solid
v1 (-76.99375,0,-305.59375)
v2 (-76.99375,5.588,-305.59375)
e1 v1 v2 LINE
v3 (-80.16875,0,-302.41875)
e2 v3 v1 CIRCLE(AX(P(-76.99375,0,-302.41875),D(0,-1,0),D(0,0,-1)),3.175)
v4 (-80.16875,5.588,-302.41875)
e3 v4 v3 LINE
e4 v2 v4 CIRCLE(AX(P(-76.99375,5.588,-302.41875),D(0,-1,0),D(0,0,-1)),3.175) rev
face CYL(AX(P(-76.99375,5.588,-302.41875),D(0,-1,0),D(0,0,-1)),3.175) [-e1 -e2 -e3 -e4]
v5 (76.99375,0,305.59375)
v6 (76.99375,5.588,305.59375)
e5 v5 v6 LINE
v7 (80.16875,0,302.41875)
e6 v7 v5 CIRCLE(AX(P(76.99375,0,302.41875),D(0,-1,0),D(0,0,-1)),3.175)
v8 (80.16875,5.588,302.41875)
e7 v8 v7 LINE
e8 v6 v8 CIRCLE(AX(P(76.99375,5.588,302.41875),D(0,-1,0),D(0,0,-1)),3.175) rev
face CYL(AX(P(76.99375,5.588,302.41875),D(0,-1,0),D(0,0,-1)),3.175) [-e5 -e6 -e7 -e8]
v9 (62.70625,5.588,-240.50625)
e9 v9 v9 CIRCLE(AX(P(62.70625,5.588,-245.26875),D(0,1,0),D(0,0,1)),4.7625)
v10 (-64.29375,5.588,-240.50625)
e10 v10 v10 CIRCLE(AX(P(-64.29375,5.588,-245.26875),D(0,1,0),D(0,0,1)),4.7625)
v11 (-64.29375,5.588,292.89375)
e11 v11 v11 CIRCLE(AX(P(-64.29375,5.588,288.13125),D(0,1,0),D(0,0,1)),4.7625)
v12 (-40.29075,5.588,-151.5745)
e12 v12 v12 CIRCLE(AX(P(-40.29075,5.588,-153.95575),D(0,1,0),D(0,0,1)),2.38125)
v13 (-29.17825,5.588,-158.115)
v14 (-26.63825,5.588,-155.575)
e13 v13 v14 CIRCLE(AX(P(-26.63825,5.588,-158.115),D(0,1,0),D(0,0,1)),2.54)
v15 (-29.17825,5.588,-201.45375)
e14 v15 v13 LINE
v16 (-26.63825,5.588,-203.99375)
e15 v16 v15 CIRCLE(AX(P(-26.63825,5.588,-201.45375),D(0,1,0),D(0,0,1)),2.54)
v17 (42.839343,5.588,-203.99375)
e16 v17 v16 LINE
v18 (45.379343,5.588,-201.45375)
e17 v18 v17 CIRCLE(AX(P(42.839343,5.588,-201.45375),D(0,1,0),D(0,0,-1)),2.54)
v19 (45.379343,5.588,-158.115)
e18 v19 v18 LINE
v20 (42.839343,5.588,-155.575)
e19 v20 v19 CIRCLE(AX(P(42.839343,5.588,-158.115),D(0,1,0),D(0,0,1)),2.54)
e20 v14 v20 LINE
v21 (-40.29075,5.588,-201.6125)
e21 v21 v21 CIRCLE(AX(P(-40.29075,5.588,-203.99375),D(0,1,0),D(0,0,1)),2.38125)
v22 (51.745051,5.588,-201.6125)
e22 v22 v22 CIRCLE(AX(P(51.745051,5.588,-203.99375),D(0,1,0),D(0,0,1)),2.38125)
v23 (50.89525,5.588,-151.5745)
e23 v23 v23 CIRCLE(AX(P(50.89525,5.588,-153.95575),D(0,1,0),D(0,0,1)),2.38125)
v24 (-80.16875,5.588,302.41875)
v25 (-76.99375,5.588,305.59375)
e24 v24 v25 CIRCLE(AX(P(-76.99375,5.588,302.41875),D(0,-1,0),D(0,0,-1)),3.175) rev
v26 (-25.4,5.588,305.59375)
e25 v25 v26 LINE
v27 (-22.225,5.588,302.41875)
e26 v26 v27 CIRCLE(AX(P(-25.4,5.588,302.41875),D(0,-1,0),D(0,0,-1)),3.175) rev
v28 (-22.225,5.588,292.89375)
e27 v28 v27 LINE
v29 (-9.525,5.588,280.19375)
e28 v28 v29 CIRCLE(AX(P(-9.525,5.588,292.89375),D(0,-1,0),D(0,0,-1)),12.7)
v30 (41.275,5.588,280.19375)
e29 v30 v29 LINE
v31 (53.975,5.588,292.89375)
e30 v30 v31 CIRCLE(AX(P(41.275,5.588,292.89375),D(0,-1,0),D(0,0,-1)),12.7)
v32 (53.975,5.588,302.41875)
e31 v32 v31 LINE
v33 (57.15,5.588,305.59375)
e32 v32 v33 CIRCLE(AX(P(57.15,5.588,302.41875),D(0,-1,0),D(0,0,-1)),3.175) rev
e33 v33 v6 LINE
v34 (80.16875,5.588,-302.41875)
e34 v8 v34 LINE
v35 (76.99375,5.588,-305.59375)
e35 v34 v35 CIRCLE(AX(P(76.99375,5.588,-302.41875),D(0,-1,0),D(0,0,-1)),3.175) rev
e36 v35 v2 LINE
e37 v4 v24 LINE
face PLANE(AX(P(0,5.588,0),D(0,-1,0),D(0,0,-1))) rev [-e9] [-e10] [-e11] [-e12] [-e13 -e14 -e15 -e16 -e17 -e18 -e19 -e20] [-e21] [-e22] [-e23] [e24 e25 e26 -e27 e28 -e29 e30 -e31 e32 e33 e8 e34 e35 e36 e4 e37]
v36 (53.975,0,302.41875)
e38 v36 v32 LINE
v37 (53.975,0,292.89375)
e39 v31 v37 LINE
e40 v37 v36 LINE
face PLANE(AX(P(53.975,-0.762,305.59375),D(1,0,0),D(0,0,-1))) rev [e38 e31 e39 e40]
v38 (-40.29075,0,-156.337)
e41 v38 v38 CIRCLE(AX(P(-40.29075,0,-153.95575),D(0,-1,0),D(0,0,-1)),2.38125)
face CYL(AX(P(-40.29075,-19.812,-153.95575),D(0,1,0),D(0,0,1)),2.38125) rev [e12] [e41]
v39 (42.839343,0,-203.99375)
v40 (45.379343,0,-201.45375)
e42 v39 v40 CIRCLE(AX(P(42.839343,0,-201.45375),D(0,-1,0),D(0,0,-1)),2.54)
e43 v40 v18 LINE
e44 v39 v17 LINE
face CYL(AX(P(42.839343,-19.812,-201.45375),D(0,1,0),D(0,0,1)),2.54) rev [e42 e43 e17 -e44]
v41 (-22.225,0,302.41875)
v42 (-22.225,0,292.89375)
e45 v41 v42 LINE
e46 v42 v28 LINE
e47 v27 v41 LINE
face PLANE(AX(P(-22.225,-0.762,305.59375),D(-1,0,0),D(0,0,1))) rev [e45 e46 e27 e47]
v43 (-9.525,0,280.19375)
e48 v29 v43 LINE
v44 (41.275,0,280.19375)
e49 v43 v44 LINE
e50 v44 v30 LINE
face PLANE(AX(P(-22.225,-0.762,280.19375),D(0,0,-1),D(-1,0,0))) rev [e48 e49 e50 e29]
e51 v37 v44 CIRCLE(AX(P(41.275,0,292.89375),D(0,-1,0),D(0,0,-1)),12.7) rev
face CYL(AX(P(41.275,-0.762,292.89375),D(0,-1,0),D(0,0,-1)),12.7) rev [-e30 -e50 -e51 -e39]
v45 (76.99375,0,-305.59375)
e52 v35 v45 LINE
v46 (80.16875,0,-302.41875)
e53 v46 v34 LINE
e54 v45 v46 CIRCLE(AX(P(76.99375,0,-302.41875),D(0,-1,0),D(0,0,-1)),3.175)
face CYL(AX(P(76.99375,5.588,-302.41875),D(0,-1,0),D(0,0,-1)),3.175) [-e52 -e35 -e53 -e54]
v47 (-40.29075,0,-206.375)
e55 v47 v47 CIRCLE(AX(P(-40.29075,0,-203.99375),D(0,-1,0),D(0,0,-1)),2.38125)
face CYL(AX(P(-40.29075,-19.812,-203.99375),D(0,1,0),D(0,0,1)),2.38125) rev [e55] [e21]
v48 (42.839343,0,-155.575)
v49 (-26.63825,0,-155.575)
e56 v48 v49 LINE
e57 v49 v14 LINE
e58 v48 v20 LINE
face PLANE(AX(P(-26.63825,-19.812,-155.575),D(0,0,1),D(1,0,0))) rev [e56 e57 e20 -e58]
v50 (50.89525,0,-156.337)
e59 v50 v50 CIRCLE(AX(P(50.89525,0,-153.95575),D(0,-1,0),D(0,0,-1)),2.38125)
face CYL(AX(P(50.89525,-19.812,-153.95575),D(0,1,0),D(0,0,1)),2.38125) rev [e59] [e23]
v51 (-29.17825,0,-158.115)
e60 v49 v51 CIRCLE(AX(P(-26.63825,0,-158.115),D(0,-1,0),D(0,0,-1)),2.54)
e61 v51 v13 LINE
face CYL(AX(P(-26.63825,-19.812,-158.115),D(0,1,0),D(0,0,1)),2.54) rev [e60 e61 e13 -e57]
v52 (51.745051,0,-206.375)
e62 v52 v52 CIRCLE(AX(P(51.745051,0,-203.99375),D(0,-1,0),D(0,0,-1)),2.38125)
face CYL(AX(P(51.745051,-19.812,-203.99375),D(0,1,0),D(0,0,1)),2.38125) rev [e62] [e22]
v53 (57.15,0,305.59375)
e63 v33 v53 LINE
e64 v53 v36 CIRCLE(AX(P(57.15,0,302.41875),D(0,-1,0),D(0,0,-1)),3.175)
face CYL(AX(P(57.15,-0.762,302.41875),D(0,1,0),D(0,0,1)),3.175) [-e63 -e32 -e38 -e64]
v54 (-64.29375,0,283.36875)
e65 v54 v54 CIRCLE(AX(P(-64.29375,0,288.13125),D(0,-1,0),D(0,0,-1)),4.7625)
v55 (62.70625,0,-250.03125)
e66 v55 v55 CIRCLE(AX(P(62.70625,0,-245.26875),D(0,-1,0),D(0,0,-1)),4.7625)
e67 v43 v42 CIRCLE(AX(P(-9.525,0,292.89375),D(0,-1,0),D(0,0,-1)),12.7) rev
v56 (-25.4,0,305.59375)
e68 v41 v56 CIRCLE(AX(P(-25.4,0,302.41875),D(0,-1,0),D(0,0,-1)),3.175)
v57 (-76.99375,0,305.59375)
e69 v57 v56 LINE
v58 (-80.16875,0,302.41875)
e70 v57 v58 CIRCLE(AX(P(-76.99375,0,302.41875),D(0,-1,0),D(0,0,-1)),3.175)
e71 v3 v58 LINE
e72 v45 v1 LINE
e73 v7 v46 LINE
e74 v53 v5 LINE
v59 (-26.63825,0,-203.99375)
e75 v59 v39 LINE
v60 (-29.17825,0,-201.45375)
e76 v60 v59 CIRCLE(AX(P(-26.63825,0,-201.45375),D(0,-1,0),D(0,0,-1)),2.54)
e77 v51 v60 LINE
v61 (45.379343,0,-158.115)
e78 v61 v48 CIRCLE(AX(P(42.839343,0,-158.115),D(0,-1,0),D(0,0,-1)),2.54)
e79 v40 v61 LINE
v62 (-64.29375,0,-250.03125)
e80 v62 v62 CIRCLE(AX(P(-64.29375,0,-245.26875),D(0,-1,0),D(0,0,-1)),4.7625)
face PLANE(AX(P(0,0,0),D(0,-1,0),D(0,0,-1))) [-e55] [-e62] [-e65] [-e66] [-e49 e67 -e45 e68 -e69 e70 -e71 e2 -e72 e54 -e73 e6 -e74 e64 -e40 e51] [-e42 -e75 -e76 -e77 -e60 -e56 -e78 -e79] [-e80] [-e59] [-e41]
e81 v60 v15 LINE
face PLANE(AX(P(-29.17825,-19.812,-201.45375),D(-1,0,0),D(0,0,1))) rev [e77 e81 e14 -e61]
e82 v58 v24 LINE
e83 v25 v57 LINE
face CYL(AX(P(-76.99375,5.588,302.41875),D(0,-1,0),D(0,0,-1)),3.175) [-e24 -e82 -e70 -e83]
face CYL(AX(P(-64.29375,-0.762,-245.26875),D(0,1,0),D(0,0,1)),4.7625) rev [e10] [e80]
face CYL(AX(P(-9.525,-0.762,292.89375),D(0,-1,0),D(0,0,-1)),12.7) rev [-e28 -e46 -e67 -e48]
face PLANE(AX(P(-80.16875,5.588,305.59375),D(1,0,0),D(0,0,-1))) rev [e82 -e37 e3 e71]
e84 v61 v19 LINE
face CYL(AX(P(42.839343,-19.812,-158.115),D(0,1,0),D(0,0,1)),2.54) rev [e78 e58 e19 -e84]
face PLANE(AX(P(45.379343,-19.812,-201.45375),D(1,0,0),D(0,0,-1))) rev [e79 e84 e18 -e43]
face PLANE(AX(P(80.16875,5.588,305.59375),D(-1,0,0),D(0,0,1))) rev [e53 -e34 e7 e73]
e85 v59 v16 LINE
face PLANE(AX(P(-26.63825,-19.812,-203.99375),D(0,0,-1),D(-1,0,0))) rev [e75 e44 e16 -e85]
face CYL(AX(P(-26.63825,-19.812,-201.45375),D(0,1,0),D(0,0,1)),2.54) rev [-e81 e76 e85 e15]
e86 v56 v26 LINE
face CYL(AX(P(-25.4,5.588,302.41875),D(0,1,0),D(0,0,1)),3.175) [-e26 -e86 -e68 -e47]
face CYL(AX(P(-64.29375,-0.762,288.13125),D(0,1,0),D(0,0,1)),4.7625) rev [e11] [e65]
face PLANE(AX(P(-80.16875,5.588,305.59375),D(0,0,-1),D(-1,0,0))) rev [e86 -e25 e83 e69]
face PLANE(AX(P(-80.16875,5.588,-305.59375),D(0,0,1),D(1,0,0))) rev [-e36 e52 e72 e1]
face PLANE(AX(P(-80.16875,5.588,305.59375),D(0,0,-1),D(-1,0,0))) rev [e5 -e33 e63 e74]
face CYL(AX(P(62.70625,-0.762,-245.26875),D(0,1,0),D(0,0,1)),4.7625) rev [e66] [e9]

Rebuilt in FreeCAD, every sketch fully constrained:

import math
import FreeCAD as App
import Part
import Sketcher
Q = App.Units.Quantity


def edges_at(feature, points):
    """Names of the edges that pass closest to the given points."""
    edges = feature.Shape.Edges
    near = lambda p: min(range(len(edges)), key=lambda i: edges[i].distToShape(Part.Vertex(*p))[0])
    return sorted({f"Edge{near(p) + 1}" for p in points})

doc = App.newDocument("Part")
body = doc.addObject("PartDesign::Body", "Body")

# Sketch on XZ plane
sketch1 = doc.addObject("Sketcher::SketchObject", "Sketch")
body.addObject(sketch1)
sketch1.AttachmentSupport = (doc.XZ_Plane, [""])
sketch1.MapMode = "FlatFace"
sketch1.addGeometry([
    Part.LineSegment(App.Vector(-80.16875, -305.59375, 0), App.Vector(-80.16875, 305.59375, 0)),
    Part.LineSegment(App.Vector(-80.16875, 305.59375, 0), App.Vector(80.16875, 305.59375, 0)),
    Part.LineSegment(App.Vector(80.16875, 305.59375, 0), App.Vector(80.16875, -305.59375, 0)),
    Part.LineSegment(App.Vector(80.16875, -305.59375, 0), App.Vector(-80.16875, -305.59375, 0)),
], False)
sketch1.addConstraint([
    Sketcher.Constraint("Coincident", 0, 2, 1, 1),
    Sketcher.Constraint("Coincident", 1, 2, 2, 1),
    Sketcher.Constraint("Coincident", 2, 2, 3, 1),
    Sketcher.Constraint("Coincident", 3, 2, 0, 1),
    Sketcher.Constraint("Vertical", 0),
    Sketcher.Constraint("Horizontal", 1),
    Sketcher.Constraint("Vertical", 2),
    Sketcher.Constraint("Horizontal", 3),
    Sketcher.Constraint("Symmetric", 0, 2, 2, 2, -1, 1),
    Sketcher.Constraint("DistanceX", 1, 1, 1, 2, Q("6.3125 in")),
    Sketcher.Constraint("DistanceY", 0, 1, 0, 2, Q("24.0625 in")),
])
pad1 = doc.addObject("PartDesign::Pad", "Pad")
body.addObject(pad1)
pad1.Profile = sketch1
pad1.Length = Q("0.22 in")
pad1.Reversed = True
doc.recompute()

fillet = doc.addObject("PartDesign::Fillet", "Fillet")
body.addObject(fillet)
fillet.Base = (pad1, edges_at(pad1, [
    (80.169, 2.794, 305.594),
    (-80.169, 2.794, 305.594),
    (-80.169, 2.794, -305.594),
    (80.169, 2.794, -305.594),
]))
fillet.Radius = Q("0.125 in")

# Sketch on XZ plane
sketch2 = doc.addObject("Sketcher::SketchObject", "Sketch001")
body.addObject(sketch2)
sketch2.AttachmentSupport = (doc.XZ_Plane, [""])
sketch2.MapMode = "FlatFace"
sketch2.AttachmentOffset = App.Placement(App.Vector(0, 0, -0.22 * 25.4), App.Rotation())
sketch2.addGeometry([
    Part.Circle(App.Vector(62.70625, -245.26875, 0), App.Vector(0, 0, 1), 4.7625),
    Part.Circle(App.Vector(-64.29375, -245.26875, 0), App.Vector(0, 0, 1), 4.7625),
    Part.Circle(App.Vector(-64.29375, 288.13125, 0), App.Vector(0, 0, 1), 4.7625),
], False)
sketch2.addConstraint([
    Sketcher.Constraint("Equal", 0, 1),
    Sketcher.Constraint("Equal", 1, 2),
    Sketcher.Constraint("Horizontal", 0, 3, 1, 3),
    Sketcher.Constraint("Vertical", 1, 3, 2, 3),
    Sketcher.Constraint("Diameter", 0, Q("0.375 in")),
    Sketcher.Constraint("DistanceX", 1, 3, 0, 3, Q("5 in")),
    Sketcher.Constraint("DistanceY", 1, 3, 2, 3, Q("21 in")),
    Sketcher.Constraint("DistanceX", -1, 1, 0, 3, Q("2.46875 in")),
    Sketcher.Constraint("DistanceY", 0, 3, -1, 1, Q("9.65625 in")),
])
pocket1 = doc.addObject("PartDesign::Pocket", "Pocket")
body.addObject(pocket1)
pocket1.Profile = sketch2
pocket1.Length = Q("0.25 in")
pocket1.Reversed = True

# Sketch on XZ plane
sketch3 = doc.addObject("Sketcher::SketchObject", "Sketch002")
body.addObject(sketch3)
sketch3.AttachmentSupport = (doc.XZ_Plane, [""])
sketch3.MapMode = "FlatFace"
sketch3.AttachmentOffset = App.Placement(App.Vector(0, 0, -0.22 * 25.4), App.Rotation())
sketch3.addGeometry([
    Part.LineSegment(App.Vector(-22.225, 280.19375, 0), App.Vector(-22.225, 305.59375, 0)),
    Part.LineSegment(App.Vector(-22.225, 305.59375, 0), App.Vector(53.975, 305.59375, 0)),
    Part.LineSegment(App.Vector(53.975, 305.59375, 0), App.Vector(53.975, 280.19375, 0)),
    Part.LineSegment(App.Vector(53.975, 280.19375, 0), App.Vector(-22.225, 280.19375, 0)),
], False)
sketch3.addConstraint([
    Sketcher.Constraint("Coincident", 0, 2, 1, 1),
    Sketcher.Constraint("Coincident", 1, 2, 2, 1),
    Sketcher.Constraint("Coincident", 2, 2, 3, 1),
    Sketcher.Constraint("Coincident", 3, 2, 0, 1),
    Sketcher.Constraint("Vertical", 0),
    Sketcher.Constraint("Horizontal", 1),
    Sketcher.Constraint("Vertical", 2),
    Sketcher.Constraint("Horizontal", 3),
    Sketcher.Constraint("DistanceX", 1, 1, 1, 2, Q("3 in")),
    Sketcher.Constraint("DistanceY", 0, 1, 0, 2, Q("1 in")),
    Sketcher.Constraint("DistanceX", 0, 2, -1, 1, Q("0.875 in")),
    Sketcher.Constraint("DistanceY", -1, 1, 0, 2, Q("12.03125 in")),
])
pocket2 = doc.addObject("PartDesign::Pocket", "Pocket001")
body.addObject(pocket2)
pocket2.Profile = sketch3
pocket2.Length = Q("0.25 in")
pocket2.Reversed = True
doc.recompute()

fillet2 = doc.addObject("PartDesign::Fillet", "Fillet001")
body.addObject(fillet2)
fillet2.Base = (pocket2, edges_at(pocket2, [(-22.225, 2.794, 305.594), (53.975, 2.794, 305.594)]))
fillet2.Radius = Q("0.125 in")
doc.recompute()

fillet3 = doc.addObject("PartDesign::Fillet", "Fillet002")
body.addObject(fillet3)
fillet3.Base = (fillet2, edges_at(fillet2, [(-22.225, 2.794, 280.194), (53.975, 2.794, 280.194)]))
fillet3.Radius = Q("0.5 in")

# Sketch on XZ plane
sketch4 = doc.addObject("Sketcher::SketchObject", "Sketch003")
body.addObject(sketch4)
sketch4.AttachmentSupport = (doc.XZ_Plane, [""])
sketch4.MapMode = "FlatFace"
sketch4.AttachmentOffset = App.Placement(App.Vector(0, 0, -0.22 * 25.4), App.Rotation())
sketch4.addGeometry([
    Part.Circle(App.Vector(-40.29075, -203.99375, 0), App.Vector(0, 0, 1), 2.38125),  # 0
    Part.Circle(App.Vector(-40.29075, -153.95575, 0), App.Vector(0, 0, 1), 2.38125),  # 1
    Part.Circle(App.Vector(51.745051, -203.99375, 0), App.Vector(0, 0, 1), 2.38125),  # 2
    Part.Circle(App.Vector(50.89525, -153.95575, 0), App.Vector(0, 0, 1), 2.38125),  # 3
    Part.LineSegment(App.Vector(42.839343, -203.99375, 0), App.Vector(-26.63825, -203.99375, 0)),  # 4
    Part.ArcOfCircle(Part.Circle(App.Vector(-26.63825, -201.45375, 0), App.Vector(0, 0, 1), 2.54), math.radians(-180), math.radians(-90)),  # 5
    Part.LineSegment(App.Vector(-29.17825, -201.45375, 0), App.Vector(-29.17825, -158.115, 0)),  # 6
    Part.ArcOfCircle(Part.Circle(App.Vector(-26.63825, -158.115, 0), App.Vector(0, 0, 1), 2.54), math.radians(90), math.radians(180)),  # 7
    Part.LineSegment(App.Vector(-26.63825, -155.575, 0), App.Vector(42.839343, -155.575, 0)),  # 8
    Part.ArcOfCircle(Part.Circle(App.Vector(42.839343, -158.115, 0), App.Vector(0, 0, 1), 2.54), math.radians(0), math.radians(90)),  # 9
    Part.LineSegment(App.Vector(45.379343, -158.115, 0), App.Vector(45.379343, -201.45375, 0)),  # 10
    Part.ArcOfCircle(Part.Circle(App.Vector(42.839343, -201.45375, 0), App.Vector(0, 0, 1), 2.54), math.radians(-90), math.radians(0)),  # 11
], False)
sketch4.addConstraint([
    Sketcher.Constraint("Tangent", 4, 2, 5, 2),
    Sketcher.Constraint("Tangent", 5, 1, 6, 1),
    Sketcher.Constraint("Tangent", 6, 2, 7, 2),
    Sketcher.Constraint("Tangent", 7, 1, 8, 1),
    Sketcher.Constraint("Tangent", 8, 2, 9, 2),
    Sketcher.Constraint("Tangent", 9, 1, 10, 1),
    Sketcher.Constraint("Tangent", 10, 2, 11, 2),
    Sketcher.Constraint("Tangent", 11, 1, 4, 1),
    Sketcher.Constraint("Horizontal", 4),
    Sketcher.Constraint("Vertical", 6),
    Sketcher.Constraint("Horizontal", 8),
    Sketcher.Constraint("Vertical", 10),
    Sketcher.Constraint("Equal", 0, 1),
    Sketcher.Constraint("Equal", 1, 2),
    Sketcher.Constraint("Equal", 2, 3),
    Sketcher.Constraint("Equal", 5, 7),
    Sketcher.Constraint("Equal", 7, 9),
    Sketcher.Constraint("Equal", 9, 11),
    Sketcher.Constraint("Horizontal", 0, 3, 2, 3),
    Sketcher.Constraint("Horizontal", 1, 3, 3, 3),
    Sketcher.Constraint("Horizontal", 2, 3, 4, 2),
    Sketcher.Constraint("Vertical", 0, 3, 1, 3),
    Sketcher.Constraint("Radius", 5, Q("0.1 in")),
    Sketcher.Constraint("Diameter", 0, Q("0.1875 in")),
    Sketcher.Constraint("DistanceY", 0, 3, 1, 3, Q("1.97 in")),
    Sketcher.Constraint("DistanceX", 1, 3, 3, 3, Q("3.59 in")),
    Sketcher.Constraint("DistanceY", 0, 3, -1, 1, Q("8.03125 in")),
    Sketcher.Constraint("DistanceY", 7, 3, -1, 1, Q("6.225 in")),
    Sketcher.Constraint("DistanceX", 0, 3, 5, 1, Q("0.4375 in")),
    Sketcher.Constraint("DistanceX", 0, 3, 2, 3, 92.035801),
    Sketcher.Constraint("DistanceX", 4, 2, 4, 1, 69.477593),
    Sketcher.Constraint("DistanceX", 0, 3, -1, 1, 40.29075),
])
pocket3 = doc.addObject("PartDesign::Pocket", "Pocket002")
body.addObject(pocket3)
pocket3.Profile = sketch4
pocket3.Length = Q("1 in")
pocket3.Reversed = True

doc.recompute()
